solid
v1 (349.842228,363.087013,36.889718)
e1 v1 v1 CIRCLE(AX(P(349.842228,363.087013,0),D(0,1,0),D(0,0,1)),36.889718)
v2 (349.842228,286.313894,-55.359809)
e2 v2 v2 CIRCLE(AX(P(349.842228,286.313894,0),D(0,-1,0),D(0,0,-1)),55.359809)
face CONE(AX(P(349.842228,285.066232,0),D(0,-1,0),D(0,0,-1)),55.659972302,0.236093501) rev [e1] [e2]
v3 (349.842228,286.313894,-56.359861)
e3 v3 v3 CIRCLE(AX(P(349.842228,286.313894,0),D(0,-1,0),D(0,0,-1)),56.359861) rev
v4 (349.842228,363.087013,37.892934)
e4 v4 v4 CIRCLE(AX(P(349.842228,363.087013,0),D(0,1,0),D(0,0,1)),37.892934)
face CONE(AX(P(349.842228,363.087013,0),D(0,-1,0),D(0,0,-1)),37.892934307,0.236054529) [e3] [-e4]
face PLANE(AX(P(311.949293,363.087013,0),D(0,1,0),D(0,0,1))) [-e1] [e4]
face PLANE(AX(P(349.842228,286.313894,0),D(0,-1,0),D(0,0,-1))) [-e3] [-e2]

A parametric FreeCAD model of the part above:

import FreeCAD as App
import Part
import Sketcher
Q = App.Units.Quantity


def add_polygon(sketch, points):
    """Adds a closed chain of lines whose ends are joined by coincident constraints."""
    first, n = sketch.GeometryCount, len(points)
    for a, b in zip(points, points[1:] + points[:1]):
        sketch.addGeometry(Part.LineSegment(App.Vector(*a, 0), App.Vector(*b, 0)), False)
    for i in range(n):
        sketch.addConstraint(Sketcher.Constraint("Coincident", first + i, 2, first + (i + 1) % n, 1))

doc = App.newDocument("Part")
body = doc.addObject("PartDesign::Body", "Body")

# Sketch on XY plane
sketch1 = body.newObject("Sketcher::SketchObject", "Sketch")
sketch1.AttachmentSupport = (doc.getObject("XY_Plane"), [""])
sketch1.MapMode = "FlatFace"
add_polygon(sketch1, [(293.2, 285.3), (294.2, 285.1), (313, 363.1), (311.9, 363.1)])  # lines 0-3
sketch1.addGeometry(Part.LineSegment(App.Vector(349.8, 363.1, 0), App.Vector(349.8, 285.1, 0)), True)  # axis
sketch1.addConstraint([
    Sketcher.Constraint("Horizontal", 2),
    Sketcher.Constraint("Vertical", 4),
    Sketcher.Constraint("Horizontal", 2, 2, 4, 1),
    Sketcher.Constraint("Horizontal", 0, 2, 4, 2),
    Sketcher.Constraint("Distance", 1, Q("80.246899 mm")),
    Sketcher.Constraint("DistanceY", 4, 2, 4, 1, Q("78.020782 mm")),
    Sketcher.Constraint("DistanceX", 3, 2, 4, 1, Q("56.6004 mm")),
    Sketcher.Constraint("Distance", 0, Q("0.972492 mm")),
    Sketcher.Constraint("Distance", 3, Q("79.991421 mm")),
    Sketcher.Constraint("DistanceX", 2, 2, 2, 1, Q("1.003217 mm")),
    Sketcher.Constraint("DistanceY", -1, 1, 0, 2, Q("285.066232 mm")),
    Sketcher.Constraint("DistanceX", -1, 1, 1, 2, Q("312.95251 mm")),
])
revolution = body.newObject("PartDesign::Revolution", "Revolution")
revolution.Profile = sketch1
revolution.ReferenceAxis = (sketch1, ["Axis0"])
revolution.Angle = 360

# Sketch on XZ plane
sketch2 = body.newObject("Sketcher::SketchObject", "Sketch001")
sketch2.AttachmentSupport = (doc.getObject("XZ_Plane"), [""])
sketch2.MapMode = "FlatFace"
sketch2.AttachmentOffset = App.Placement(App.Vector(0, 0, -285.313894), App.Rotation())
sketch2.addGeometry(Part.Circle(App.Vector(350, 0, 0), App.Vector(0, 0, 1), 60), False)
sketch2.addConstraint([
    Sketcher.Constraint("PointOnObject", 0, 3, -1),
    Sketcher.Constraint("Diameter", 0, Q("120.441766 mm")),
    Sketcher.Constraint("DistanceX", -1, 1, 0, 3, Q("349.842228 mm")),
])
pocket1 = body.newObject("PartDesign::Pocket", "Pocket")
pocket1.Profile = sketch2
pocket1.Type = "TwoLengths"
pocket1.Length = 1
pocket1.Length2 = 1
pocket1.Reversed = True

doc.recompute()
